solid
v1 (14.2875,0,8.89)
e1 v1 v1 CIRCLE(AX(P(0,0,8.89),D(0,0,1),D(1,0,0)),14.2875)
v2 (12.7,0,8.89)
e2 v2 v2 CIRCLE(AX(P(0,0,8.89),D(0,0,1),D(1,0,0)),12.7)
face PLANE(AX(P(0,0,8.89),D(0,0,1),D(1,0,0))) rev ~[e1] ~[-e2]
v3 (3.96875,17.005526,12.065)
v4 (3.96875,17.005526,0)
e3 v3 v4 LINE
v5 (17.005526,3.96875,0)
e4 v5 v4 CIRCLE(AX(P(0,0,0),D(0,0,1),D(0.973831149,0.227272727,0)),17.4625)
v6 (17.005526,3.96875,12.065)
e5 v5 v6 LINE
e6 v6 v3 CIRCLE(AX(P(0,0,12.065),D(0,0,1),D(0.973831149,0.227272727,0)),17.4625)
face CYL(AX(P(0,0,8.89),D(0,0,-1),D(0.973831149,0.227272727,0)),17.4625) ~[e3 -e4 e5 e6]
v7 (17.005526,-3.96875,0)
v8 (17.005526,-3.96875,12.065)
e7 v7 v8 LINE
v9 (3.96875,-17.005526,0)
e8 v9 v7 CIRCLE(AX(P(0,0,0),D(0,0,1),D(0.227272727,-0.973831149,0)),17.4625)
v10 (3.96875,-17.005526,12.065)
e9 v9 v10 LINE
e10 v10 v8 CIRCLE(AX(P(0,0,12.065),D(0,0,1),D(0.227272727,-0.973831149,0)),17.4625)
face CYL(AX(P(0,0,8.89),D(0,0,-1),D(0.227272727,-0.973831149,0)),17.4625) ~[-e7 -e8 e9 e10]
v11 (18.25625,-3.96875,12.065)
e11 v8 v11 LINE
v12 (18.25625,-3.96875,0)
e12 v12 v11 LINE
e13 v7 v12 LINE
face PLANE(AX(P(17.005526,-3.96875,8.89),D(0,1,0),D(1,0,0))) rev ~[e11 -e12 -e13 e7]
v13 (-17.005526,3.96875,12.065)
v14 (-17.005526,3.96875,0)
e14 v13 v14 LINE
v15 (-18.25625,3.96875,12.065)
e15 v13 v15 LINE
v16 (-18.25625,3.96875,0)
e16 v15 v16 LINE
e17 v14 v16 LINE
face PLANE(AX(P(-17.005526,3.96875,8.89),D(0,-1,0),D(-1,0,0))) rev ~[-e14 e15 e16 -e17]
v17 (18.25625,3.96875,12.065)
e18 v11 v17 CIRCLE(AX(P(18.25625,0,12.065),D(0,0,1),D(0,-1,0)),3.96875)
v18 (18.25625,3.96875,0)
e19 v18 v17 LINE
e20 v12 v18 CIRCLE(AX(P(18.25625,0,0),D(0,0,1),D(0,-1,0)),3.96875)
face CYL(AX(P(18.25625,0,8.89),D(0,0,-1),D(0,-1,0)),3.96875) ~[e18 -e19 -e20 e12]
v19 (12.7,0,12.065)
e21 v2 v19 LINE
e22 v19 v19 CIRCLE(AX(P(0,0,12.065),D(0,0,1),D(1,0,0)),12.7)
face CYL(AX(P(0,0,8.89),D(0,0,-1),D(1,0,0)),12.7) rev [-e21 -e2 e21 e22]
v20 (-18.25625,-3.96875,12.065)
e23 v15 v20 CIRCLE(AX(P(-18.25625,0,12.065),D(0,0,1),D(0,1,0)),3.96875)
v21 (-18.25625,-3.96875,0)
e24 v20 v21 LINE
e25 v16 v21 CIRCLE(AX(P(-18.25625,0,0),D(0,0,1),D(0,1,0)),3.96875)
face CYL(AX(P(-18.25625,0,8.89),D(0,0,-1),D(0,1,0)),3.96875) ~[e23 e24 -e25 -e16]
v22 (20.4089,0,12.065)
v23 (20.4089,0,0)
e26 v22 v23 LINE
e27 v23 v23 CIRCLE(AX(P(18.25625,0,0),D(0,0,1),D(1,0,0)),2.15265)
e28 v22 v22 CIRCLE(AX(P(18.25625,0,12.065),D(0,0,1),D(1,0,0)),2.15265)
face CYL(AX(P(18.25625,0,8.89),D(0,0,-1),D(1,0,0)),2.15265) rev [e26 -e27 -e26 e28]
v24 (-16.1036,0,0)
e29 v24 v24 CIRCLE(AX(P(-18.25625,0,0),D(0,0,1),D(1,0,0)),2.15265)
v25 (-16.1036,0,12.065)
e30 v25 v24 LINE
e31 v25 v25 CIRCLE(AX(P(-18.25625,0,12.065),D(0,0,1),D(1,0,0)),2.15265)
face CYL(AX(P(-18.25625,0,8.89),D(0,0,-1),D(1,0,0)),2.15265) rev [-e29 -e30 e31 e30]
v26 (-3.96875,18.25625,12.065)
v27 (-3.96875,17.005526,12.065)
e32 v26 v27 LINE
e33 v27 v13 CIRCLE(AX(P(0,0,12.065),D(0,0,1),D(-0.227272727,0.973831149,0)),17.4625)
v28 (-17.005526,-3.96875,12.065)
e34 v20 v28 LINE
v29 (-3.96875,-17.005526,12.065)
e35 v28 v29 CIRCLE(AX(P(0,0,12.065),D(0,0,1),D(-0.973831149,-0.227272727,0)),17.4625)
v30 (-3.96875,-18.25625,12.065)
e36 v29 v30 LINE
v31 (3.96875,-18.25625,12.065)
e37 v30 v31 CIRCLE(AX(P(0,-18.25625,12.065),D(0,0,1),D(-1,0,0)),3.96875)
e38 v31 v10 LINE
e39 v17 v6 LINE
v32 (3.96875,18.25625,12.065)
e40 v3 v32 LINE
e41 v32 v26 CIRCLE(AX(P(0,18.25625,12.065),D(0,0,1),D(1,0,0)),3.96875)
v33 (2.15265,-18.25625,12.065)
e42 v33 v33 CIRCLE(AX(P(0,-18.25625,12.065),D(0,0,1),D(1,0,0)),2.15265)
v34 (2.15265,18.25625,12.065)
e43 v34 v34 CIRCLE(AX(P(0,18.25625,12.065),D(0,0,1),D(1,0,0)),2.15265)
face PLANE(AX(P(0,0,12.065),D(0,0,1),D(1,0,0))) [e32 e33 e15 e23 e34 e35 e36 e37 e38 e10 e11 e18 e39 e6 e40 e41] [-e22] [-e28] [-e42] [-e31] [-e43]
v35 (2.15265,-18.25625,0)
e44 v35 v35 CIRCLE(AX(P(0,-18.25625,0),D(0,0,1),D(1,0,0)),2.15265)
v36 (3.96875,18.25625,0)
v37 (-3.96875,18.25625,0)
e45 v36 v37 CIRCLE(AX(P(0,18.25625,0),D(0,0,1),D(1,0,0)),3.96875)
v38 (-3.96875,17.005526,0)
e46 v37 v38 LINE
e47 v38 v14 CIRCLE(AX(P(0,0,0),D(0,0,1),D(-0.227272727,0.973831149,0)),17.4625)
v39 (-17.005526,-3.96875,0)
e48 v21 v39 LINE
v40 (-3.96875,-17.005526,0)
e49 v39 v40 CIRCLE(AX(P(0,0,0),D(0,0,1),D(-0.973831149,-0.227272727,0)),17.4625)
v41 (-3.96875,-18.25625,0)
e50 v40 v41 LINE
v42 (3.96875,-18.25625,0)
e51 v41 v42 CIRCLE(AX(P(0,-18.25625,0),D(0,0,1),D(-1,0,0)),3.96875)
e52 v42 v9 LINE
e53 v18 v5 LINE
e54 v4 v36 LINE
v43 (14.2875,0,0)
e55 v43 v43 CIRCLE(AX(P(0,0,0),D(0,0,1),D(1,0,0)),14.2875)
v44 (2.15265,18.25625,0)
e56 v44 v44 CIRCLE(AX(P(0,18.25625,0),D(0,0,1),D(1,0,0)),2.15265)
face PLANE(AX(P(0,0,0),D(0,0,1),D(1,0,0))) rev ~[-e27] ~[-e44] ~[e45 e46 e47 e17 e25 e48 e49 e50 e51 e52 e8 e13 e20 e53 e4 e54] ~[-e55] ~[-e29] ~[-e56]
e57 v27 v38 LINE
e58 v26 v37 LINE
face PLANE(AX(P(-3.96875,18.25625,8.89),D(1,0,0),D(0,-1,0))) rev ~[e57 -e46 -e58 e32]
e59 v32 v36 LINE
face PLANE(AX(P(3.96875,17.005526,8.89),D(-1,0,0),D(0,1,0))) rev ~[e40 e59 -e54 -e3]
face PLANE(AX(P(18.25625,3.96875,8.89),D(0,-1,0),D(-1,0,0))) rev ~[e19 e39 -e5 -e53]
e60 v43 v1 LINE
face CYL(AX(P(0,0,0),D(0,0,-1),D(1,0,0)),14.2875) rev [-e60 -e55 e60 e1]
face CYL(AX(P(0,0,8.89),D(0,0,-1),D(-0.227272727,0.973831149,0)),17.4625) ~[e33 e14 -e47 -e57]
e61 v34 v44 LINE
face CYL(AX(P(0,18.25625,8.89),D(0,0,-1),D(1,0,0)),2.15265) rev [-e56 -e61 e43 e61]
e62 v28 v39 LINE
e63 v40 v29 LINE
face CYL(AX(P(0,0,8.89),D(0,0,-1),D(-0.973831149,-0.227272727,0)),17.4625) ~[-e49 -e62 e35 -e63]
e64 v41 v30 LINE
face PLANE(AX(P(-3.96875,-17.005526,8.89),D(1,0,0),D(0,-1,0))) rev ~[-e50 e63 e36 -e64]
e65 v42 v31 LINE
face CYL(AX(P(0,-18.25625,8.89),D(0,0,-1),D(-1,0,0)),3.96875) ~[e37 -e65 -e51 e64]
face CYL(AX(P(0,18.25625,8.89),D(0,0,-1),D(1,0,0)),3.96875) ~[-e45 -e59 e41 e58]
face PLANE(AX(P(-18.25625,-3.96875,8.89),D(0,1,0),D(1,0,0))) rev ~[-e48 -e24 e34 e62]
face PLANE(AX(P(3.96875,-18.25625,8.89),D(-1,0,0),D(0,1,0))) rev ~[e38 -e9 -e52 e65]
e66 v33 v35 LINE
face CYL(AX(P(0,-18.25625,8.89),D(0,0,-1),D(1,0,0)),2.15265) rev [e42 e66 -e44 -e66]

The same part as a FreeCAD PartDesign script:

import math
import FreeCAD as App
import Part
import Sketcher
from FreeCAD import Vector
Q = App.Units.Quantity

doc = App.newDocument("Part")
body = doc.addObject("PartDesign::Body", "Body")

# Sketch on XY plane
sketch1 = body.newObject("Sketcher::SketchObject", "Sketch")
sketch1.AttachmentSupport = (doc.getObject("XY_Plane"), [""])
sketch1.MapMode = "FlatFace"
sketch1.addGeometry(Part.LineSegment(Vector(4, 17, 0), Vector(4, 18.3, 0)), False)
sketch1.addGeometry(Part.ArcOfCircle(Part.Circle(Vector(0, 18.3, 0), Vector(0, 0, 1), 4), math.radians(0), math.radians(180)), False)
sketch1.addGeometry(Part.LineSegment(Vector(-4, 18.3, 0), Vector(-4, 17, 0)), False)
sketch1.addGeometry(Part.ArcOfCircle(Part.Circle(Vector(0, 0, 0), Vector(0, 0, 1), 17.5), math.radians(103), math.radians(167)), False)
sketch1.addGeometry(Part.LineSegment(Vector(-17, 4, 0), Vector(-18.3, 4, 0)), False)
sketch1.addGeometry(Part.ArcOfCircle(Part.Circle(Vector(-18.3, 0, 0), Vector(0, 0, 1), 4), math.radians(90), math.radians(270)), False)
sketch1.addGeometry(Part.LineSegment(Vector(-18.3, -4, 0), Vector(-17, -4, 0)), False)
sketch1.addGeometry(Part.ArcOfCircle(Part.Circle(Vector(0, 0, 0), Vector(0, 0, 1), 17.5), math.radians(-167), math.radians(-103)), False)
sketch1.addGeometry(Part.LineSegment(Vector(-4, -17, 0), Vector(-4, -18.3, 0)), False)
sketch1.addGeometry(Part.ArcOfCircle(Part.Circle(Vector(0, -18.3, 0), Vector(0, 0, 1), 4), math.radians(180), math.radians(360)), False)
sketch1.addGeometry(Part.LineSegment(Vector(4, -18.3, 0), Vector(4, -17, 0)), False)
sketch1.addGeometry(Part.ArcOfCircle(Part.Circle(Vector(0, 0, 0), Vector(0, 0, 1), 17.5), math.radians(-77), math.radians(-13)), False)
sketch1.addGeometry(Part.LineSegment(Vector(17, -4, 0), Vector(18.3, -4, 0)), False)
sketch1.addGeometry(Part.ArcOfCircle(Part.Circle(Vector(18.3, 0, 0), Vector(0, 0, 1), 4), math.radians(-90), math.radians(90)), False)
sketch1.addGeometry(Part.LineSegment(Vector(18.3, 4, 0), Vector(17, 4, 0)), False)
sketch1.addGeometry(Part.ArcOfCircle(Part.Circle(Vector(0, 0, 0), Vector(0, 0, 1), 17.5), math.radians(13), math.radians(77)), False)
sketch1.addGeometry(Part.Circle(Vector(0, -18.3, 0), Vector(0, 0, 1), 2.2), False)
sketch1.addGeometry(Part.Circle(Vector(-18.3, 0, 0), Vector(0, 0, 1), 2.2), False)
sketch1.addGeometry(Part.Circle(Vector(0, 0, 0), Vector(0, 0, 1), 14.3), False)
sketch1.addGeometry(Part.Circle(Vector(18.3, 0, 0), Vector(0, 0, 1), 2.2), False)
sketch1.addGeometry(Part.Circle(Vector(0, 18.3, 0), Vector(0, 0, 1), 2.2), False)
sketch1.addConstraint(Sketcher.Constraint("Tangent", 0, 2, 1, 1))
sketch1.addConstraint(Sketcher.Constraint("Tangent", 1, 2, 2, 1))
sketch1.addConstraint(Sketcher.Constraint("Coincident", 2, 2, 3, 1))
sketch1.addConstraint(Sketcher.Constraint("Coincident", 3, 2, 4, 1))
sketch1.addConstraint(Sketcher.Constraint("Tangent", 4, 2, 5, 1))
sketch1.addConstraint(Sketcher.Constraint("Tangent", 5, 2, 6, 1))
sketch1.addConstraint(Sketcher.Constraint("Coincident", 6, 2, 7, 1))
sketch1.addConstraint(Sketcher.Constraint("Coincident", 7, 2, 8, 1))
sketch1.addConstraint(Sketcher.Constraint("Tangent", 8, 2, 9, 1))
sketch1.addConstraint(Sketcher.Constraint("Tangent", 9, 2, 10, 1))
sketch1.addConstraint(Sketcher.Constraint("Coincident", 10, 2, 11, 1))
sketch1.addConstraint(Sketcher.Constraint("Coincident", 11, 2, 12, 1))
sketch1.addConstraint(Sketcher.Constraint("Tangent", 12, 2, 13, 1))
sketch1.addConstraint(Sketcher.Constraint("Tangent", 13, 2, 14, 1))
sketch1.addConstraint(Sketcher.Constraint("Coincident", 14, 2, 15, 1))
sketch1.addConstraint(Sketcher.Constraint("Coincident", 15, 2, 0, 1))
sketch1.addConstraint(Sketcher.Constraint("Vertical", 0))
sketch1.addConstraint(Sketcher.Constraint("Vertical", 2))
sketch1.addConstraint(Sketcher.Constraint("Horizontal", 4))
sketch1.addConstraint(Sketcher.Constraint("Horizontal", 6))
sketch1.addConstraint(Sketcher.Constraint("Vertical", 8))
sketch1.addConstraint(Sketcher.Constraint("Vertical", 10))
sketch1.addConstraint(Sketcher.Constraint("Horizontal", 12))
sketch1.addConstraint(Sketcher.Constraint("Horizontal", 14))
sketch1.addConstraint(Sketcher.Constraint("Coincident", 3, 3, -1, 1))
sketch1.addConstraint(Sketcher.Constraint("Coincident", 7, 3, -1, 1))
sketch1.addConstraint(Sketcher.Constraint("Coincident", 11, 3, -1, 1))
sketch1.addConstraint(Sketcher.Constraint("Coincident", 15, 3, -1, 1))
sketch1.addConstraint(Sketcher.Constraint("Coincident", 18, 3, -1, 1))
sketch1.addConstraint(Sketcher.Constraint("Coincident", 16, 3, 9, 3))
sketch1.addConstraint(Sketcher.Constraint("Coincident", 17, 3, 5, 3))
sketch1.addConstraint(Sketcher.Constraint("Coincident", 19, 3, 13, 3))
sketch1.addConstraint(Sketcher.Constraint("Coincident", 20, 3, 1, 3))
sketch1.addConstraint(Sketcher.Constraint("Equal", 1, 5))
sketch1.addConstraint(Sketcher.Constraint("Equal", 3, 7))
sketch1.addConstraint(Sketcher.Constraint("Equal", 5, 9))
sketch1.addConstraint(Sketcher.Constraint("Equal", 7, 11))
sketch1.addConstraint(Sketcher.Constraint("Equal", 9, 13))
sketch1.addConstraint(Sketcher.Constraint("Equal", 11, 15))
sketch1.addConstraint(Sketcher.Constraint("Equal", 16, 17))
sketch1.addConstraint(Sketcher.Constraint("Equal", 17, 19))
sketch1.addConstraint(Sketcher.Constraint("Equal", 19, 20))
sketch1.addConstraint(Sketcher.Constraint("Symmetric", 1, 3, 9, 3, -1, 1))
sketch1.addConstraint(Sketcher.Constraint("Symmetric", 5, 3, 13, 3, -1, 1))
sketch1.addConstraint(Sketcher.Constraint("PointOnObject", 1, 3, -2))
sketch1.addConstraint(Sketcher.Constraint("PointOnObject", 5, 3, -1))
sketch1.addConstraint(Sketcher.Constraint("Equal", 14, 0))
sketch1.addConstraint(Sketcher.Constraint("Diameter", 18, Q("1.125 in")))
sketch1.addConstraint(Sketcher.Constraint("Radius", 1, Q("0.15625 in")))
sketch1.addConstraint(Sketcher.Constraint("Radius", 3, Q("0.6875 in")))
sketch1.addConstraint(Sketcher.Constraint("Diameter", 16, Q("0.1695 in")))
sketch1.addConstraint(Sketcher.Constraint("DistanceY", -1, 1, 1, 3, Q("0.71875 in")))
pad1 = body.newObject("PartDesign::Pad", "Pad")
pad1.Profile = sketch1
pad1.Length = Q("0.35 in")

# Sketch on XY plane
sketch2 = body.newObject("Sketcher::SketchObject", "Sketch001")
sketch2.AttachmentSupport = (doc.getObject("XY_Plane"), [""])
sketch2.MapMode = "FlatFace"
sketch2.AttachmentOffset = App.Placement(Vector(0, 0, 0.35 * 25.4), App.Rotation())
sketch2.addGeometry(Part.ArcOfCircle(Part.Circle(Vector(0, 0, 0), Vector(0, 0, 1), 17.5), math.radians(-167), math.radians(-103)), False)
sketch2.addGeometry(Part.LineSegment(Vector(-4, -17, 0), Vector(-4, -18.3, 0)), False)
sketch2.addGeometry(Part.ArcOfCircle(Part.Circle(Vector(0, -18.3, 0), Vector(0, 0, 1), 4), math.radians(180), math.radians(360)), False)
sketch2.addGeometry(Part.LineSegment(Vector(4, -18.3, 0), Vector(4, -17, 0)), False)
sketch2.addGeometry(Part.ArcOfCircle(Part.Circle(Vector(0, 0, 0), Vector(0, 0, 1), 17.5), math.radians(-77), math.radians(-13)), False)
sketch2.addGeometry(Part.LineSegment(Vector(17, -4, 0), Vector(18.3, -4, 0)), False)
sketch2.addGeometry(Part.ArcOfCircle(Part.Circle(Vector(18.3, 0, 0), Vector(0, 0, 1), 4), math.radians(-90), math.radians(90)), False)
sketch2.addGeometry(Part.LineSegment(Vector(18.3, 4, 0), Vector(17, 4, 0)), False)
sketch2.addGeometry(Part.ArcOfCircle(Part.Circle(Vector(0, 0, 0), Vector(0, 0, 1), 17.5), math.radians(13), math.radians(77)), False)
sketch2.addGeometry(Part.LineSegment(Vector(4, 17, 0), Vector(4, 18.3, 0)), False)
sketch2.addGeometry(Part.ArcOfCircle(Part.Circle(Vector(0, 18.3, 0), Vector(0, 0, 1), 4), math.radians(0), math.radians(180)), False)
sketch2.addGeometry(Part.LineSegment(Vector(-4, 18.3, 0), Vector(-4, 17, 0)), False)
sketch2.addGeometry(Part.ArcOfCircle(Part.Circle(Vector(0, 0, 0), Vector(0, 0, 1), 17.5), math.radians(103), math.radians(167)), False)
sketch2.addGeometry(Part.LineSegment(Vector(-17, 4, 0), Vector(-18.3, 4, 0)), False)
sketch2.addGeometry(Part.ArcOfCircle(Part.Circle(Vector(-18.3, 0, 0), Vector(0, 0, 1), 4), math.radians(90), math.radians(270)), False)
sketch2.addGeometry(Part.LineSegment(Vector(-18.3, -4, 0), Vector(-17, -4, 0)), False)
sketch2.addGeometry(Part.Circle(Vector(0, -18.3, 0), Vector(0, 0, 1), 2.2), False)
sketch2.addGeometry(Part.Circle(Vector(-18.3, 0, 0), Vector(0, 0, 1), 2.2), False)
sketch2.addGeometry(Part.Circle(Vector(0, 0, 0), Vector(0, 0, 1), 12.7), False)
sketch2.addGeometry(Part.Circle(Vector(18.3, 0, 0), Vector(0, 0, 1), 2.2), False)
sketch2.addGeometry(Part.Circle(Vector(0, 18.3, 0), Vector(0, 0, 1), 2.2), False)
sketch2.addConstraint(Sketcher.Constraint("Coincident", 0, 2, 1, 1))
sketch2.addConstraint(Sketcher.Constraint("Tangent", 1, 2, 2, 1))
sketch2.addConstraint(Sketcher.Constraint("Tangent", 2, 2, 3, 1))
sketch2.addConstraint(Sketcher.Constraint("Coincident", 3, 2, 4, 1))
sketch2.addConstraint(Sketcher.Constraint("Coincident", 4, 2, 5, 1))
sketch2.addConstraint(Sketcher.Constraint("Tangent", 5, 2, 6, 1))
sketch2.addConstraint(Sketcher.Constraint("Tangent", 6, 2, 7, 1))
sketch2.addConstraint(Sketcher.Constraint("Coincident", 7, 2, 8, 1))
sketch2.addConstraint(Sketcher.Constraint("Coincident", 8, 2, 9, 1))
sketch2.addConstraint(Sketcher.Constraint("Tangent", 9, 2, 10, 1))
sketch2.addConstraint(Sketcher.Constraint("Tangent", 10, 2, 11, 1))
sketch2.addConstraint(Sketcher.Constraint("Coincident", 11, 2, 12, 1))
sketch2.addConstraint(Sketcher.Constraint("Coincident", 12, 2, 13, 1))
sketch2.addConstraint(Sketcher.Constraint("Tangent", 13, 2, 14, 1))
sketch2.addConstraint(Sketcher.Constraint("Tangent", 14, 2, 15, 1))
sketch2.addConstraint(Sketcher.Constraint("Coincident", 15, 2, 0, 1))
sketch2.addConstraint(Sketcher.Constraint("Vertical", 1))
sketch2.addConstraint(Sketcher.Constraint("Vertical", 3))
sketch2.addConstraint(Sketcher.Constraint("Horizontal", 5))
sketch2.addConstraint(Sketcher.Constraint("Horizontal", 7))
sketch2.addConstraint(Sketcher.Constraint("Vertical", 9))
sketch2.addConstraint(Sketcher.Constraint("Vertical", 11))
sketch2.addConstraint(Sketcher.Constraint("Horizontal", 13))
sketch2.addConstraint(Sketcher.Constraint("Horizontal", 15))
sketch2.addConstraint(Sketcher.Constraint("Coincident", 0, 3, -1, 1))
sketch2.addConstraint(Sketcher.Constraint("Coincident", 4, 3, -1, 1))
sketch2.addConstraint(Sketcher.Constraint("Coincident", 8, 3, -1, 1))
sketch2.addConstraint(Sketcher.Constraint("Coincident", 12, 3, -1, 1))
sketch2.addConstraint(Sketcher.Constraint("Coincident", 18, 3, -1, 1))
sketch2.addConstraint(Sketcher.Constraint("Coincident", 16, 3, 2, 3))
sketch2.addConstraint(Sketcher.Constraint("Coincident", 17, 3, 14, 3))
sketch2.addConstraint(Sketcher.Constraint("Coincident", 19, 3, 6, 3))
sketch2.addConstraint(Sketcher.Constraint("Coincident", 20, 3, 10, 3))
sketch2.addConstraint(Sketcher.Constraint("Equal", 0, 4))
sketch2.addConstraint(Sketcher.Constraint("Equal", 2, 6))
sketch2.addConstraint(Sketcher.Constraint("Equal", 4, 8))
sketch2.addConstraint(Sketcher.Constraint("Equal", 6, 10))
sketch2.addConstraint(Sketcher.Constraint("Equal", 8, 12))
sketch2.addConstraint(Sketcher.Constraint("Equal", 10, 14))
sketch2.addConstraint(Sketcher.Constraint("Equal", 16, 17))
sketch2.addConstraint(Sketcher.Constraint("Equal", 17, 19))
sketch2.addConstraint(Sketcher.Constraint("Equal", 19, 20))
sketch2.addConstraint(Sketcher.Constraint("Symmetric", 2, 3, 10, 3, -1, 1))
sketch2.addConstraint(Sketcher.Constraint("Symmetric", 6, 3, 14, 3, -1, 1))
sketch2.addConstraint(Sketcher.Constraint("PointOnObject", 2, 3, -2))
sketch2.addConstraint(Sketcher.Constraint("PointOnObject", 6, 3, -1))
sketch2.addConstraint(Sketcher.Constraint("Equal", 15, 1))
sketch2.addConstraint(Sketcher.Constraint("Diameter", 18, Q("1 in")))
sketch2.addConstraint(Sketcher.Constraint("Radius", 0, Q("0.6875 in")))
sketch2.addConstraint(Sketcher.Constraint("Radius", 2, Q("0.15625 in")))
sketch2.addConstraint(Sketcher.Constraint("Diameter", 16, Q("0.1695 in")))
sketch2.addConstraint(Sketcher.Constraint("DistanceY", 2, 3, -1, 1, Q("0.71875 in")))
pad2 = body.newObject("PartDesign::Pad", "Pad001")
pad2.Profile = sketch2
pad2.Length = Q("0.125 in")

doc.recompute()
